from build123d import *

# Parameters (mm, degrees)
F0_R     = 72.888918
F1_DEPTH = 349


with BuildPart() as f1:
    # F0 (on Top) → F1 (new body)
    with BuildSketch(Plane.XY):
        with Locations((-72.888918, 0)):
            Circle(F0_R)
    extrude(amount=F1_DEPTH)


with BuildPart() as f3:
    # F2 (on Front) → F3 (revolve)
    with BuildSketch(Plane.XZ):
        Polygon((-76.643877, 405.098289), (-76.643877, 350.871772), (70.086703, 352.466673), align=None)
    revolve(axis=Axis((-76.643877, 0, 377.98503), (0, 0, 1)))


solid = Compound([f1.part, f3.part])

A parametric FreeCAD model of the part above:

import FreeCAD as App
import Part
import Sketcher

V = App.Vector

doc = App.newDocument("Part")
body = doc.addObject("PartDesign::Body", "Body")

sketch1 = doc.addObject("Sketcher::SketchObject", "Sketch")
body.addObject(sketch1)
sketch1.AttachmentSupport = (doc.XY_Plane, [""])
sketch1.MapMode = "FlatFace"
sketch1.addGeometry(Part.Circle(V(-73, 0, 0), V(0, 0, 1), 73), False)
sketch1.addConstraint(Sketcher.Constraint("PointOnObject", 0, 3, -1))
sketch1.addConstraint(Sketcher.Constraint("Diameter", 0, 145.777836))
sketch1.addConstraint(Sketcher.Constraint("DistanceX", 0, 3, -1, 1, 72.888918))
pad1 = doc.addObject("PartDesign::Pad", "Pad")
body.addObject(pad1)
pad1.Profile = sketch1
pad1.Length = 349
body2 = doc.addObject("PartDesign::Body", "Body001")

sketch2 = doc.addObject("Sketcher::SketchObject", "Sketch001")
body2.addObject(sketch2)
sketch2.AttachmentSupport = (doc.getObject("XZ_Plane001"), [""])
sketch2.MapMode = "FlatFace"
sketch2.addGeometry(Part.LineSegment(V(-77, 405, 0), V(-77, 351, 0)), False)
sketch2.addGeometry(Part.LineSegment(V(-77, 351, 0), V(70, 352, 0)), False)
sketch2.addGeometry(Part.LineSegment(V(70, 352, 0), V(-77, 405, 0)), False)
sketch2.addGeometry(Part.LineSegment(V(-77, 351, 0), V(-77, 405, 0)), True)
sketch2.addConstraint(Sketcher.Constraint("Coincident", 0, 2, 1, 1))
sketch2.addConstraint(Sketcher.Constraint("Coincident", 1, 2, 2, 1))
sketch2.addConstraint(Sketcher.Constraint("Coincident", 2, 2, 0, 1))
sketch2.addConstraint(Sketcher.Constraint("Vertical", 0))
sketch2.addConstraint(Sketcher.Constraint("Vertical", 3))
sketch2.addConstraint(Sketcher.Constraint("Coincident", 3, 1, 0, 2))
sketch2.addConstraint(Sketcher.Constraint("Equal", 0, 3))
sketch2.addConstraint(Sketcher.Constraint("DistanceY", 0, 2, 1, 2, 1.594901))
sketch2.addConstraint(Sketcher.Constraint("DistanceY", 0, 2, 0, 1, 54.226517))
sketch2.addConstraint(Sketcher.Constraint("DistanceY", -1, 1, 0, 2, 350.871772))
sketch2.addConstraint(Sketcher.Constraint("DistanceX", 0, 2, 1, 2, 146.73058))
sketch2.addConstraint(Sketcher.Constraint("DistanceX", 0, 2, -1, 1, 76.643877))
revolution = doc.addObject("PartDesign::Revolution", "Revolution")
body2.addObject(revolution)
revolution.Profile = sketch2
revolution.ReferenceAxis = (sketch2, ["Axis0"])
revolution.Angle = 360

doc.recompute()
